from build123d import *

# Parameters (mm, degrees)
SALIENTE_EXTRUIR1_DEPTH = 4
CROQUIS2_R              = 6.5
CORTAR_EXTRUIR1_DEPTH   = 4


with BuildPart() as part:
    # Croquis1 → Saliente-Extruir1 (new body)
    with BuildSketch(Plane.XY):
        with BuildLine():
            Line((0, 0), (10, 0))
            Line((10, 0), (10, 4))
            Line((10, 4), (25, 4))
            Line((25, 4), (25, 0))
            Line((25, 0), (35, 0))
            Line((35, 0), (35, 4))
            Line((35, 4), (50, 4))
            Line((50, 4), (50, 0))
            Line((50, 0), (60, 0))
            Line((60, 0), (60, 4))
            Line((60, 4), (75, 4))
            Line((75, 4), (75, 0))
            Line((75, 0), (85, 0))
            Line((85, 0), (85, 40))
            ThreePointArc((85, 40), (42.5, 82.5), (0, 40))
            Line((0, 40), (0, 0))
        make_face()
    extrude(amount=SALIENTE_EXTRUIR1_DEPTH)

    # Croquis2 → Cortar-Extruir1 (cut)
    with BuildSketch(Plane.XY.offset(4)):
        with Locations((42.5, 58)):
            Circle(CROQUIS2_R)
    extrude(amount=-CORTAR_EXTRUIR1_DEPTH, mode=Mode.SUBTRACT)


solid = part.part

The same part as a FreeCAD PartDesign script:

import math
import FreeCAD as App
import Part
import Sketcher

doc = App.newDocument("Part")
body = doc.addObject("PartDesign::Body", "Body")

# Sketch on XY plane
sketch1 = doc.addObject("Sketcher::SketchObject", "Sketch")
body.addObject(sketch1)
sketch1.AttachmentSupport = (doc.XY_Plane, [""])
sketch1.MapMode = "FlatFace"
sketch1.addGeometry([
    Part.LineSegment(App.Vector(0, 0, 0), App.Vector(10, 0, 0)),  # 0
    Part.LineSegment(App.Vector(10, 0, 0), App.Vector(10, 4, 0)),  # 1
    Part.LineSegment(App.Vector(10, 4, 0), App.Vector(25, 4, 0)),  # 2
    Part.LineSegment(App.Vector(25, 4, 0), App.Vector(25, 0, 0)),  # 3
    Part.LineSegment(App.Vector(25, 0, 0), App.Vector(35, 0, 0)),  # 4
    Part.LineSegment(App.Vector(35, 0, 0), App.Vector(35, 4, 0)),  # 5
    Part.LineSegment(App.Vector(35, 4, 0), App.Vector(50, 4, 0)),  # 6
    Part.LineSegment(App.Vector(50, 4, 0), App.Vector(50, 0, 0)),  # 7
    Part.LineSegment(App.Vector(50, 0, 0), App.Vector(60, 0, 0)),  # 8
    Part.LineSegment(App.Vector(60, 0, 0), App.Vector(60, 4, 0)),  # 9
    Part.LineSegment(App.Vector(60, 4, 0), App.Vector(75, 4, 0)),  # 10
    Part.LineSegment(App.Vector(75, 4, 0), App.Vector(75, 0, 0)),  # 11
    Part.LineSegment(App.Vector(75, 0, 0), App.Vector(85, 0, 0)),  # 12
    Part.LineSegment(App.Vector(85, 0, 0), App.Vector(85, 40, 0)),  # 13
    Part.ArcOfCircle(Part.Circle(App.Vector(42.5, 40, 0), App.Vector(0, 0, 1), 42.5), math.radians(0), math.radians(180)),  # 14
    Part.LineSegment(App.Vector(0, 40, 0), App.Vector(0, 0, 0)),  # 15
], False)
sketch1.addConstraint([
    Sketcher.Constraint("Coincident", 0, 2, 1, 1),
    Sketcher.Constraint("Coincident", 1, 2, 2, 1),
    Sketcher.Constraint("Coincident", 2, 2, 3, 1),
    Sketcher.Constraint("Coincident", 3, 2, 4, 1),
    Sketcher.Constraint("Coincident", 4, 2, 5, 1),
    Sketcher.Constraint("Coincident", 5, 2, 6, 1),
    Sketcher.Constraint("Coincident", 6, 2, 7, 1),
    Sketcher.Constraint("Coincident", 7, 2, 8, 1),
    Sketcher.Constraint("Coincident", 8, 2, 9, 1),
    Sketcher.Constraint("Coincident", 9, 2, 10, 1),
    Sketcher.Constraint("Coincident", 10, 2, 11, 1),
    Sketcher.Constraint("Coincident", 11, 2, 12, 1),
    Sketcher.Constraint("Coincident", 12, 2, 13, 1),
    Sketcher.Constraint("Tangent", 13, 2, 14, 1),
    Sketcher.Constraint("Tangent", 14, 2, 15, 1),
    Sketcher.Constraint("Coincident", 15, 2, 0, 1),
    Sketcher.Constraint("Horizontal", 0),
    Sketcher.Constraint("Vertical", 1),
    Sketcher.Constraint("Horizontal", 2),
    Sketcher.Constraint("Vertical", 3),
    Sketcher.Constraint("Horizontal", 4),
    Sketcher.Constraint("Vertical", 5),
    Sketcher.Constraint("Horizontal", 6),
    Sketcher.Constraint("Vertical", 7),
    Sketcher.Constraint("Horizontal", 8),
    Sketcher.Constraint("Vertical", 9),
    Sketcher.Constraint("Horizontal", 10),
    Sketcher.Constraint("Vertical", 11),
    Sketcher.Constraint("Horizontal", 12),
    Sketcher.Constraint("Vertical", 13),
    Sketcher.Constraint("Vertical", 15),
    Sketcher.Constraint("Coincident", 15, 2, -1, 1),
    Sketcher.Constraint("PointOnObject", 3, 2, -1),
    Sketcher.Constraint("PointOnObject", 7, 2, -1),
    Sketcher.Constraint("PointOnObject", 11, 2, -1),
    Sketcher.Constraint("Horizontal", 2, 2, 5, 2),
    Sketcher.Constraint("Horizontal", 6, 2, 9, 2),
    Sketcher.Constraint("Equal", 0, 4),
    Sketcher.Constraint("Equal", 2, 6),
    Sketcher.Constraint("Equal", 4, 8),
    Sketcher.Constraint("Equal", 6, 10),
    Sketcher.Constraint("Equal", 8, 12),
    Sketcher.Constraint("Radius", 14, 42.5),
    Sketcher.Constraint("DistanceX", 0, 1, 0, 2, 10.0),
    Sketcher.Constraint("DistanceY", 1, 1, 1, 2, 4.0),
    Sketcher.Constraint("DistanceY", 13, 1, 13, 2, 40.0),
])
pad1 = doc.addObject("PartDesign::Pad", "Pad")
body.addObject(pad1)
pad1.Profile = sketch1
pad1.Length = 4

# Sketch on XY plane
sketch2 = doc.addObject("Sketcher::SketchObject", "Sketch001")
body.addObject(sketch2)
sketch2.AttachmentSupport = (doc.XY_Plane, [""])
sketch2.MapMode = "FlatFace"
sketch2.AttachmentOffset = App.Placement(App.Vector(0, 0, 4), App.Rotation())
sketch2.addGeometry(Part.Circle(App.Vector(42, 58, 0), App.Vector(0, 0, 1), 6), False)
sketch2.addConstraint([
    Sketcher.Constraint("Diameter", 0, 13.0),
    Sketcher.Constraint("DistanceY", -1, 1, 0, 3, 58.0),
    Sketcher.Constraint("DistanceX", -1, 1, 0, 3, 42.5),
])
pocket1 = doc.addObject("PartDesign::Pocket", "Pocket")
body.addObject(pocket1)
pocket1.Profile = sketch2
pocket1.Length = 4

doc.recompute()
